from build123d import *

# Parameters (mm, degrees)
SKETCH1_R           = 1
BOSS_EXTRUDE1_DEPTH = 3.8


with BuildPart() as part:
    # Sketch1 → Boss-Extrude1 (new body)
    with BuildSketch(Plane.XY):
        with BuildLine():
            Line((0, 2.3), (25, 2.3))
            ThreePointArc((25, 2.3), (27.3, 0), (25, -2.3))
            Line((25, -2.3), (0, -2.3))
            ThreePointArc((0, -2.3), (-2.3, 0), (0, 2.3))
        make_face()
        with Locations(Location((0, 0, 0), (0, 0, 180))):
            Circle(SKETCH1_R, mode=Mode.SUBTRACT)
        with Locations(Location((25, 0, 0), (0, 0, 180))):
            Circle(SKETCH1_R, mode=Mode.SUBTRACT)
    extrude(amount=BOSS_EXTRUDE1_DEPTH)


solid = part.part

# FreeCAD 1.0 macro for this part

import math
import FreeCAD as App
import Part
import Sketcher

V = App.Vector
Q = App.Units.Quantity

doc = App.newDocument("Part")
body = doc.addObject("PartDesign::Body", "Body")

sketch1 = doc.addObject("Sketcher::SketchObject", "Sketch")
body.addObject(sketch1)
sketch1.AttachmentSupport = (doc.XY_Plane, [""])
sketch1.MapMode = "FlatFace"
sketch1.addGeometry(Part.LineSegment(V(25, 2.3, 0), V(0, 2.3, 0)), False)
sketch1.addGeometry(Part.ArcOfCircle(Part.Circle(V(0, 0, 0), V(0, 0, 1), 2.3), math.radians(90), math.radians(270)), False)
sketch1.addGeometry(Part.LineSegment(V(0, -2.3, 0), V(25, -2.3, 0)), False)
sketch1.addGeometry(Part.ArcOfCircle(Part.Circle(V(25, 0, 0), V(0, 0, 1), 2.3), math.radians(-90), math.radians(90)), False)
sketch1.addGeometry(Part.Circle(V(25, 0, 0), V(0, 0, 1), 1), False)
sketch1.addGeometry(Part.Circle(V(0, 0, 0), V(0, 0, 1), 1), False)
sketch1.addConstraint(Sketcher.Constraint("Tangent", 0, 2, 1, 1))
sketch1.addConstraint(Sketcher.Constraint("Tangent", 1, 2, 2, 1))
sketch1.addConstraint(Sketcher.Constraint("Tangent", 2, 2, 3, 1))
sketch1.addConstraint(Sketcher.Constraint("Tangent", 3, 2, 0, 1))
sketch1.addConstraint(Sketcher.Constraint("Horizontal", 0))
sketch1.addConstraint(Sketcher.Constraint("Horizontal", 2))
sketch1.addConstraint(Sketcher.Constraint("Coincident", 1, 3, -1, 1))
sketch1.addConstraint(Sketcher.Constraint("Coincident", 5, 3, -1, 1))
sketch1.addConstraint(Sketcher.Constraint("Coincident", 4, 3, 3, 3))
sketch1.addConstraint(Sketcher.Constraint("Equal", 4, 5))
sketch1.addConstraint(Sketcher.Constraint("Diameter", 4, Q("2 mm")))
sketch1.addConstraint(Sketcher.Constraint("Radius", 1, Q("2.3 mm")))
sketch1.addConstraint(Sketcher.Constraint("DistanceX", 0, 2, 0, 1, Q("25 mm")))
pad1 = doc.addObject("PartDesign::Pad", "Pad")
body.addObject(pad1)
pad1.Profile = sketch1
pad1.Length = 3.8

doc.recompute()
